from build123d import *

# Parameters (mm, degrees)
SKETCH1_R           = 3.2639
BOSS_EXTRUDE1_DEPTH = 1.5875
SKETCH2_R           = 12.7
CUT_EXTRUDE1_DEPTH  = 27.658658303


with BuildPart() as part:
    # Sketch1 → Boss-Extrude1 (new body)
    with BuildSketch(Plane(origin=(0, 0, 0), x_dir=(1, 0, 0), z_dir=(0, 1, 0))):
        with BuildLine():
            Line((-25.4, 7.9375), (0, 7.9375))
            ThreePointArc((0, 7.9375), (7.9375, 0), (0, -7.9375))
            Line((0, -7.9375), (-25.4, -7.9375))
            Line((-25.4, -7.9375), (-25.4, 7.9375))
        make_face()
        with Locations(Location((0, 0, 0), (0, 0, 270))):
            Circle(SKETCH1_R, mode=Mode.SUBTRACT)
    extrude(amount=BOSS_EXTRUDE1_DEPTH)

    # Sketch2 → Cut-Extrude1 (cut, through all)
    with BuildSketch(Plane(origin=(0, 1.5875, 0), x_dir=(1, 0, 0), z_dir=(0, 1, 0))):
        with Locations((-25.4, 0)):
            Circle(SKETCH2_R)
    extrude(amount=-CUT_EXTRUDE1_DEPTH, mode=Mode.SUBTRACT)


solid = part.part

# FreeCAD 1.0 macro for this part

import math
import FreeCAD as App
import Part
import Sketcher
from FreeCAD import Vector
Q = App.Units.Quantity

doc = App.newDocument("Part")
body = doc.addObject("PartDesign::Body", "Body")

# Sketch on XZ plane
sketch1 = body.newObject("Sketcher::SketchObject", "Sketch")
sketch1.AttachmentSupport = (doc.getObject("XZ_Plane"), [""])
sketch1.MapMode = "FlatFace"
sketch1.addGeometry([
    Part.LineSegment(Vector(0, -7.9, 0), Vector(-25.4, -7.9, 0)),  # 0
    Part.LineSegment(Vector(-25.4, -7.9, 0), Vector(-25.4, 7.9, 0)),  # 1
    Part.LineSegment(Vector(-25.4, 7.9, 0), Vector(0, 7.9, 0)),  # 2
    Part.ArcOfCircle(Part.Circle(Vector(0, 0, 0), Vector(0, 0, 1), 7.9), math.radians(-90), math.radians(90)),  # 3
    Part.Circle(Vector(0, 0, 0), Vector(0, 0, 1), 3.3),  # 4
], False)
sketch1.addConstraint([
    Sketcher.Constraint("Coincident", 0, 2, 1, 1),
    Sketcher.Constraint("Coincident", 1, 2, 2, 1),
    Sketcher.Constraint("Tangent", 2, 2, 3, 2),
    Sketcher.Constraint("Tangent", 3, 1, 0, 1),
    Sketcher.Constraint("Horizontal", 0),
    Sketcher.Constraint("Vertical", 1),
    Sketcher.Constraint("Horizontal", 2),
    Sketcher.Constraint("Coincident", 3, 3, -1, 1),
    Sketcher.Constraint("Coincident", 4, 3, -1, 1),
    Sketcher.Constraint("DistanceX", 0, 2, 0, 1, Q("1 in")),
    Sketcher.Constraint("Diameter", 4, Q("0.257 in")),
    Sketcher.Constraint("Radius", 3, Q("0.3125 in")),
])
pad1 = body.newObject("PartDesign::Pad", "Pad")
pad1.Profile = sketch1
pad1.Length = Q("0.0625 in")
pad1.Reversed = True

# Sketch on XZ plane
sketch2 = body.newObject("Sketcher::SketchObject", "Sketch001")
sketch2.AttachmentSupport = (doc.getObject("XZ_Plane"), [""])
sketch2.MapMode = "FlatFace"
sketch2.AttachmentOffset = App.Placement(Vector(0, 0, -0.0625 * 25.4), App.Rotation())
sketch2.addGeometry(Part.Circle(Vector(-25, 0, 0), Vector(0, 0, 1), 13), False)
sketch2.addConstraint([
    Sketcher.Constraint("PointOnObject", 0, 3, -1),
    Sketcher.Constraint("Diameter", 0, Q("1 in")),
    Sketcher.Constraint("DistanceX", 0, 3, -1, 1, Q("1 in")),
])
pocket1 = body.newObject("PartDesign::Pocket", "Pocket")
pocket1.Profile = sketch2
pocket1.Type = "ThroughAll"
pocket1.Reversed = True

doc.recompute()
